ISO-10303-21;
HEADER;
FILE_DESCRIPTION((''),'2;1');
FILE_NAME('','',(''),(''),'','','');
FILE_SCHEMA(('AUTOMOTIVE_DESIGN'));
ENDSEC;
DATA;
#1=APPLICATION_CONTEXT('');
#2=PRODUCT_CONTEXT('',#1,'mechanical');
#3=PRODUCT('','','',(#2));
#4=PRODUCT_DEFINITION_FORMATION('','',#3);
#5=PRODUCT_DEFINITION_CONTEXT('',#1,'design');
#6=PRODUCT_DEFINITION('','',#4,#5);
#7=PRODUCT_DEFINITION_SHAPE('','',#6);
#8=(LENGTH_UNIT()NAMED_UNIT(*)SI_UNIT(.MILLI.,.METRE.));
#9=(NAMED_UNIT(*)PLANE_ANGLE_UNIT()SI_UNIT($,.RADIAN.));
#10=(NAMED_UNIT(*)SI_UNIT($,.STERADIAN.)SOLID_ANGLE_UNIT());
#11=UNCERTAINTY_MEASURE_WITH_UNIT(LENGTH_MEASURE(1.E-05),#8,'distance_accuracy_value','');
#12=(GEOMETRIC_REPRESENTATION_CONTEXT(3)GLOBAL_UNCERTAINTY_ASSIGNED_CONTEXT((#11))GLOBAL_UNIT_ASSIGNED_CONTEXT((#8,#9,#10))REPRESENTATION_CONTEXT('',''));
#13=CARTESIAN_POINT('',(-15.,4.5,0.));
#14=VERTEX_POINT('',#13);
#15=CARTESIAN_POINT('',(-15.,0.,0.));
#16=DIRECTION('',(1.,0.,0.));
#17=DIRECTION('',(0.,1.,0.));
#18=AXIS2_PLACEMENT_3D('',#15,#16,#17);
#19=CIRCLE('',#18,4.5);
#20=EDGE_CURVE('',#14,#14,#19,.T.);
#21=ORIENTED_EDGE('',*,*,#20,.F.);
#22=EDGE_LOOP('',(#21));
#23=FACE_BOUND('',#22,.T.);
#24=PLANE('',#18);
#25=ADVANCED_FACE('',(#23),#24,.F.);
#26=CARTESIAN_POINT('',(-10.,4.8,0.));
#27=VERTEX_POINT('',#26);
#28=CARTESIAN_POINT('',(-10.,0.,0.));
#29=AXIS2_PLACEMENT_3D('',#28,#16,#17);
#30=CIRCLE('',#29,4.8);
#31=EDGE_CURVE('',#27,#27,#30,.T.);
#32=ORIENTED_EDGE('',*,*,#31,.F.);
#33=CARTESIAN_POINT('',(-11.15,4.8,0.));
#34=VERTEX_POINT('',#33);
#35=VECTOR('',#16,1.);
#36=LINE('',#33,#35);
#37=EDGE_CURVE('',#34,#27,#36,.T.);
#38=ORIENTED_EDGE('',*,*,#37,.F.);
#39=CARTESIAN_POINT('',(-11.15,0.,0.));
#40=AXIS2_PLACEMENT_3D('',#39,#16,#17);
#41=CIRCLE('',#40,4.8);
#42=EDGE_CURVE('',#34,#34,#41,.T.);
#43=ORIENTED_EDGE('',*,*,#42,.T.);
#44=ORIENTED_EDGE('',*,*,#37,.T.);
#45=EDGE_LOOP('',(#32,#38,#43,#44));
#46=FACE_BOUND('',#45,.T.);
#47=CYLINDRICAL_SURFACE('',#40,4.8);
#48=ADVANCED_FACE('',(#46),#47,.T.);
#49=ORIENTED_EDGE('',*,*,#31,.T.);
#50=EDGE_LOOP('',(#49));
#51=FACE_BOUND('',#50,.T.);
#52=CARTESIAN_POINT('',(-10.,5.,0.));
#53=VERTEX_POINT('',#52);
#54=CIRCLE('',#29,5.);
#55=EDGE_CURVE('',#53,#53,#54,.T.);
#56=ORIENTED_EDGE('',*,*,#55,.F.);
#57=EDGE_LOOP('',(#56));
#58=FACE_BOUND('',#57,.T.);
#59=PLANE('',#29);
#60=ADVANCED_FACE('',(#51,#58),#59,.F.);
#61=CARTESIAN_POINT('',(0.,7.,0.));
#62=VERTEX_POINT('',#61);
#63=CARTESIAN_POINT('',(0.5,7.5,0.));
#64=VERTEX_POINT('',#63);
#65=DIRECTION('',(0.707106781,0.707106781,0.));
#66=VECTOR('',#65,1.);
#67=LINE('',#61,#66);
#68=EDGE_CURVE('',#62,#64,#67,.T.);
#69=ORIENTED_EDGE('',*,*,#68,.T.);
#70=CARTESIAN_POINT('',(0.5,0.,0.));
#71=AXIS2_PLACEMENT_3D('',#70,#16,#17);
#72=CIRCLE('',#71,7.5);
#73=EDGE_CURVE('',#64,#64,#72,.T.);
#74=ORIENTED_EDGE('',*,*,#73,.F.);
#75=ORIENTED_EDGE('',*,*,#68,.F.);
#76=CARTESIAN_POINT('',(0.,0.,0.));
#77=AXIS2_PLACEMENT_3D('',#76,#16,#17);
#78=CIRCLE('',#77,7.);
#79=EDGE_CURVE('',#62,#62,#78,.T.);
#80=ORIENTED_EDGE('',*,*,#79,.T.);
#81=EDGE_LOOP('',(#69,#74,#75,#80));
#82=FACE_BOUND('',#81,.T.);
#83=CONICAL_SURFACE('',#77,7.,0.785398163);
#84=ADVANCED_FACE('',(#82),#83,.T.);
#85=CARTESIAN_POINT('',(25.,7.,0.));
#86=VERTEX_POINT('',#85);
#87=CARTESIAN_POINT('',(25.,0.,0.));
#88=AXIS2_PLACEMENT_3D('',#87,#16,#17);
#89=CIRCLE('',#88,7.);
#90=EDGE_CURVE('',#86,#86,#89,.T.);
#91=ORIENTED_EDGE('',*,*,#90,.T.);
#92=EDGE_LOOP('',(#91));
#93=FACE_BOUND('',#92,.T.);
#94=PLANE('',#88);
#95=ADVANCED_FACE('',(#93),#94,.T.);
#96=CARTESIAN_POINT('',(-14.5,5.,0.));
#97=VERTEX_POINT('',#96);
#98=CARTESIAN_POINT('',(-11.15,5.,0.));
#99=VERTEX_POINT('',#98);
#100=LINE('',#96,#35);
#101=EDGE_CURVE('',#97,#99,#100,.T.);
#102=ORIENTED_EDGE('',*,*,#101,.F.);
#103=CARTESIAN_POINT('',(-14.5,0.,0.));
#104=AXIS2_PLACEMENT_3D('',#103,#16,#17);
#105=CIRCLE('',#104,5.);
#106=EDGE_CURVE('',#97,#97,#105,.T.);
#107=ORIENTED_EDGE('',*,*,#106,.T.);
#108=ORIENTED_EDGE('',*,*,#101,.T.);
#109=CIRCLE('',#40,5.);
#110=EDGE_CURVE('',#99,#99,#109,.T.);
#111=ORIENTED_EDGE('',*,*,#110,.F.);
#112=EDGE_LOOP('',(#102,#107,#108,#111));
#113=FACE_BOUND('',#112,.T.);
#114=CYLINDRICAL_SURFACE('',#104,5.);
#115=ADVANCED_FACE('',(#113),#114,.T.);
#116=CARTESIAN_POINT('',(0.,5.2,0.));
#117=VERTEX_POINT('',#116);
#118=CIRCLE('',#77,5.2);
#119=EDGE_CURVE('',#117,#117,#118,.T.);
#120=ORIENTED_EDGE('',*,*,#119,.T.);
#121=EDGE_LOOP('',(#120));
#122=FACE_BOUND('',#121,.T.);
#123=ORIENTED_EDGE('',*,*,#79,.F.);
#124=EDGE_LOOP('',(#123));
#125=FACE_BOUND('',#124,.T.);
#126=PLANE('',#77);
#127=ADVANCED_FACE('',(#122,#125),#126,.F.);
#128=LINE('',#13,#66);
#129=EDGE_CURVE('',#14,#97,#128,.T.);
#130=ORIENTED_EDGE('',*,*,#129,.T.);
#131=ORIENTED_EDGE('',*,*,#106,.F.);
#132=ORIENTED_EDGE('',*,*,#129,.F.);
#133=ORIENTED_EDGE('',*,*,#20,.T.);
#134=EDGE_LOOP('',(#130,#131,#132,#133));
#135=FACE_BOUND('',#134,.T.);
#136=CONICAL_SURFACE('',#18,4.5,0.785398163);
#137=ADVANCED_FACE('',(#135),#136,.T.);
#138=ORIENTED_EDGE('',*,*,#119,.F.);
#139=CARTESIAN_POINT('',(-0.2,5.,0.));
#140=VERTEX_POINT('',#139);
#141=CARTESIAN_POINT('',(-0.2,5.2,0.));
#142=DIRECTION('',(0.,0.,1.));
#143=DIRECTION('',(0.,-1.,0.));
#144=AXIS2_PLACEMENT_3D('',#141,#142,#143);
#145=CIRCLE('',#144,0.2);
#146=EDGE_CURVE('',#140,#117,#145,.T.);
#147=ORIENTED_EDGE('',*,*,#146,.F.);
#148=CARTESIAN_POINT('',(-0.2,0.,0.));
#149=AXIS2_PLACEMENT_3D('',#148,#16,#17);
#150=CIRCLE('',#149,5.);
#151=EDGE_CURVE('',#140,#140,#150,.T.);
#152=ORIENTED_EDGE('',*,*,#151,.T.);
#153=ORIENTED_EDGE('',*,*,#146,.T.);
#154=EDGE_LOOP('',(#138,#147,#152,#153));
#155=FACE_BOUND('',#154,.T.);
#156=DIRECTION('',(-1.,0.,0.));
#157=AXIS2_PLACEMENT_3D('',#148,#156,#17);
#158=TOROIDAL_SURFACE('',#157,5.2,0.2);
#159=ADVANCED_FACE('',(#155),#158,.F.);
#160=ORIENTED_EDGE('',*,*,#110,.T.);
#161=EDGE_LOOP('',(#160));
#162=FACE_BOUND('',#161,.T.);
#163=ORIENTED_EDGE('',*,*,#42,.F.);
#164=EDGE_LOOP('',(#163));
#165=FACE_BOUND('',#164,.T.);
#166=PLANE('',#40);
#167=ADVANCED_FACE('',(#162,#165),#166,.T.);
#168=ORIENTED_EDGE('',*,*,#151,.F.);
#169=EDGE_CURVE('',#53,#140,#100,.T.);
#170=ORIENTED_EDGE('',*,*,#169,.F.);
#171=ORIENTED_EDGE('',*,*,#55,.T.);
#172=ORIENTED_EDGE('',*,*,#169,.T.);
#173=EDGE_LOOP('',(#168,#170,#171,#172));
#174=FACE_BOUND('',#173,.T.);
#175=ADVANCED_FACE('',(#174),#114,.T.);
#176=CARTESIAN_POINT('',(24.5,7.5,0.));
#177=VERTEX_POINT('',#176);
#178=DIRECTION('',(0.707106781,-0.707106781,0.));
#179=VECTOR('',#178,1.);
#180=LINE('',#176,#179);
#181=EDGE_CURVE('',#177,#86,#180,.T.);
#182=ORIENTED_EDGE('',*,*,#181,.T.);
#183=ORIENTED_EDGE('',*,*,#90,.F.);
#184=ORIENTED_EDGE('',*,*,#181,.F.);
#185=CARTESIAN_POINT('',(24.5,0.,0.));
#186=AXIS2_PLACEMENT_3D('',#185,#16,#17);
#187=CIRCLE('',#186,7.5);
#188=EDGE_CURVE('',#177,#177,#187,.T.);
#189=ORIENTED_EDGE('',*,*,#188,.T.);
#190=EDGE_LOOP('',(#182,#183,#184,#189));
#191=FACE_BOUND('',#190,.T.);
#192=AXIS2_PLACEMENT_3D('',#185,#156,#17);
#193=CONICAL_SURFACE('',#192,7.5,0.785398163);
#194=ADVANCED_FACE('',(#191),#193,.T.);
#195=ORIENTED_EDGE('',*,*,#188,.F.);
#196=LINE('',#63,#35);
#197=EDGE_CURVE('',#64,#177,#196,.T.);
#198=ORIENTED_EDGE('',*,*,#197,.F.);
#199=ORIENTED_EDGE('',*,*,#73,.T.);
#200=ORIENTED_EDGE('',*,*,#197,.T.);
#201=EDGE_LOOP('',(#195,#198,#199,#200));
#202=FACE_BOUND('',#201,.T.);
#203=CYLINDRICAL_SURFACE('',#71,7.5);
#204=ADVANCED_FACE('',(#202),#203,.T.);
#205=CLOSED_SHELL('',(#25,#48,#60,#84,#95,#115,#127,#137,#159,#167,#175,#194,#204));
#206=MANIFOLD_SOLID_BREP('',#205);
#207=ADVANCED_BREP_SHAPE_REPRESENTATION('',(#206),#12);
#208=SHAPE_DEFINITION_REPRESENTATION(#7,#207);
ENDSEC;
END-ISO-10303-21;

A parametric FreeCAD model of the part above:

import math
import FreeCAD as App
import Part
import Sketcher
from FreeCAD import Vector
Q = App.Units.Quantity


def add_polygon(sketch, points):
    """Adds a closed chain of lines whose ends are joined by coincident constraints."""
    first, n = sketch.GeometryCount, len(points)
    for a, b in zip(points, points[1:] + points[:1]):
        sketch.addGeometry(Part.LineSegment(App.Vector(*a, 0), App.Vector(*b, 0)), False)
    for i in range(n):
        sketch.addConstraint(Sketcher.Constraint("Coincident", first + i, 2, first + (i + 1) % n, 1))

doc = App.newDocument("Part")
body = doc.addObject("PartDesign::Body", "Body")

sketch1 = body.newObject("Sketcher::SketchObject", "Sketch")
sketch1.AttachmentSupport = (doc.getObject("XY_Plane"), [""])
sketch1.MapMode = "FlatFace"
sketch1.addGeometry([
    Part.LineSegment(Vector(-15, 0, 0), Vector(25, 0, 0)),
    Part.LineSegment(Vector(25, 0, 0), Vector(25, 7, 0)),
    Part.LineSegment(Vector(25, 7, 0), Vector(24.5, 7.5, 0)),
    Part.LineSegment(Vector(24.5, 7.5, 0), Vector(0.5, 7.5, 0)),
    Part.LineSegment(Vector(0.5, 7.5, 0), Vector(0, 7, 0)),
    Part.LineSegment(Vector(0, 7, 0), Vector(0, 5.2, 0)),
    Part.ArcOfCircle(Part.Circle(Vector(-0.2, 5.2, 0), Vector(0, 0, 1), 0.2), math.radians(-90), math.radians(0)),
    Part.LineSegment(Vector(-0.2, 5, 0), Vector(-14.5, 5, 0)),
    Part.LineSegment(Vector(-14.5, 5, 0), Vector(-15, 4.5, 0)),
    Part.LineSegment(Vector(-15, 4.5, 0), Vector(-15, 0, 0)),
], False)
sketch1.addConstraint([
    Sketcher.Constraint("Coincident", 0, 2, 1, 1),
    Sketcher.Constraint("Coincident", 1, 2, 2, 1),
    Sketcher.Constraint("Coincident", 2, 2, 3, 1),
    Sketcher.Constraint("Coincident", 3, 2, 4, 1),
    Sketcher.Constraint("Coincident", 4, 2, 5, 1),
    Sketcher.Constraint("Tangent", 5, 2, 6, 2),
    Sketcher.Constraint("Tangent", 6, 1, 7, 1),
    Sketcher.Constraint("Coincident", 7, 2, 8, 1),
    Sketcher.Constraint("Coincident", 8, 2, 9, 1),
    Sketcher.Constraint("Coincident", 9, 2, 0, 1),
    Sketcher.Constraint("Horizontal", 0),
    Sketcher.Constraint("Vertical", 1),
    Sketcher.Constraint("Horizontal", 3),
    Sketcher.Constraint("Vertical", 5),
    Sketcher.Constraint("Horizontal", 7),
    Sketcher.Constraint("Vertical", 9),
    Sketcher.Constraint("PointOnObject", 0, 2, -1),
    Sketcher.Constraint("PointOnObject", 4, 2, -2),
    Sketcher.Constraint("Perpendicular", 2, 4),
    Sketcher.Constraint("Parallel", 4, 8),
    Sketcher.Constraint("Horizontal", 1, 2, 4, 2),
    Sketcher.Constraint("Equal", 2, 4),
    Sketcher.Constraint("Equal", 4, 8),
    Sketcher.Constraint("Radius", 6, Q("0.2 mm")),
    Sketcher.Constraint("DistanceX", 0, 1, 0, 2, Q("40 mm")),
    Sketcher.Constraint("DistanceX", 3, 2, 3, 1, Q("24 mm")),
    Sketcher.Constraint("DistanceY", 1, 1, 1, 2, Q("7 mm")),
    Sketcher.Constraint("DistanceX", 7, 2, 7, 1, Q("14.3 mm")),
    Sketcher.Constraint("DistanceY", 5, 2, 5, 1, Q("1.8 mm")),
])
revolution = body.newObject("PartDesign::Revolution", "Revolution")
revolution.Profile = sketch1
revolution.ReferenceAxis = (sketch1, ["H_Axis"])
revolution.Angle = 360

sketch2 = body.newObject("Sketcher::SketchObject", "Sketch001")
sketch2.AttachmentSupport = (doc.getObject("XY_Plane"), [""])
sketch2.MapMode = "FlatFace"
add_polygon(sketch2, [(-11.2, 20), (-11.2, 4.8), (-10, 4.8), (-10, 20)])
sketch2.addConstraint([
    Sketcher.Constraint("Vertical", 0),
    Sketcher.Constraint("Horizontal", 1),
    Sketcher.Constraint("Vertical", 2),
    Sketcher.Constraint("Horizontal", 3),
    Sketcher.Constraint("DistanceY", 0, 2, 0, 1, Q("15.2 mm")),
    Sketcher.Constraint("DistanceX", 1, 2, -1, 1, Q("10 mm")),
    Sketcher.Constraint("DistanceY", -1, 1, 2, 2, Q("20 mm")),
    Sketcher.Constraint("DistanceX", 1, 1, 1, 2, Q("1.15 mm")),
])
groove = body.newObject("PartDesign::Groove", "Groove")
groove.Profile = sketch2
groove.ReferenceAxis = (sketch2, ["H_Axis"])
groove.Angle = 360

doc.recompute()
